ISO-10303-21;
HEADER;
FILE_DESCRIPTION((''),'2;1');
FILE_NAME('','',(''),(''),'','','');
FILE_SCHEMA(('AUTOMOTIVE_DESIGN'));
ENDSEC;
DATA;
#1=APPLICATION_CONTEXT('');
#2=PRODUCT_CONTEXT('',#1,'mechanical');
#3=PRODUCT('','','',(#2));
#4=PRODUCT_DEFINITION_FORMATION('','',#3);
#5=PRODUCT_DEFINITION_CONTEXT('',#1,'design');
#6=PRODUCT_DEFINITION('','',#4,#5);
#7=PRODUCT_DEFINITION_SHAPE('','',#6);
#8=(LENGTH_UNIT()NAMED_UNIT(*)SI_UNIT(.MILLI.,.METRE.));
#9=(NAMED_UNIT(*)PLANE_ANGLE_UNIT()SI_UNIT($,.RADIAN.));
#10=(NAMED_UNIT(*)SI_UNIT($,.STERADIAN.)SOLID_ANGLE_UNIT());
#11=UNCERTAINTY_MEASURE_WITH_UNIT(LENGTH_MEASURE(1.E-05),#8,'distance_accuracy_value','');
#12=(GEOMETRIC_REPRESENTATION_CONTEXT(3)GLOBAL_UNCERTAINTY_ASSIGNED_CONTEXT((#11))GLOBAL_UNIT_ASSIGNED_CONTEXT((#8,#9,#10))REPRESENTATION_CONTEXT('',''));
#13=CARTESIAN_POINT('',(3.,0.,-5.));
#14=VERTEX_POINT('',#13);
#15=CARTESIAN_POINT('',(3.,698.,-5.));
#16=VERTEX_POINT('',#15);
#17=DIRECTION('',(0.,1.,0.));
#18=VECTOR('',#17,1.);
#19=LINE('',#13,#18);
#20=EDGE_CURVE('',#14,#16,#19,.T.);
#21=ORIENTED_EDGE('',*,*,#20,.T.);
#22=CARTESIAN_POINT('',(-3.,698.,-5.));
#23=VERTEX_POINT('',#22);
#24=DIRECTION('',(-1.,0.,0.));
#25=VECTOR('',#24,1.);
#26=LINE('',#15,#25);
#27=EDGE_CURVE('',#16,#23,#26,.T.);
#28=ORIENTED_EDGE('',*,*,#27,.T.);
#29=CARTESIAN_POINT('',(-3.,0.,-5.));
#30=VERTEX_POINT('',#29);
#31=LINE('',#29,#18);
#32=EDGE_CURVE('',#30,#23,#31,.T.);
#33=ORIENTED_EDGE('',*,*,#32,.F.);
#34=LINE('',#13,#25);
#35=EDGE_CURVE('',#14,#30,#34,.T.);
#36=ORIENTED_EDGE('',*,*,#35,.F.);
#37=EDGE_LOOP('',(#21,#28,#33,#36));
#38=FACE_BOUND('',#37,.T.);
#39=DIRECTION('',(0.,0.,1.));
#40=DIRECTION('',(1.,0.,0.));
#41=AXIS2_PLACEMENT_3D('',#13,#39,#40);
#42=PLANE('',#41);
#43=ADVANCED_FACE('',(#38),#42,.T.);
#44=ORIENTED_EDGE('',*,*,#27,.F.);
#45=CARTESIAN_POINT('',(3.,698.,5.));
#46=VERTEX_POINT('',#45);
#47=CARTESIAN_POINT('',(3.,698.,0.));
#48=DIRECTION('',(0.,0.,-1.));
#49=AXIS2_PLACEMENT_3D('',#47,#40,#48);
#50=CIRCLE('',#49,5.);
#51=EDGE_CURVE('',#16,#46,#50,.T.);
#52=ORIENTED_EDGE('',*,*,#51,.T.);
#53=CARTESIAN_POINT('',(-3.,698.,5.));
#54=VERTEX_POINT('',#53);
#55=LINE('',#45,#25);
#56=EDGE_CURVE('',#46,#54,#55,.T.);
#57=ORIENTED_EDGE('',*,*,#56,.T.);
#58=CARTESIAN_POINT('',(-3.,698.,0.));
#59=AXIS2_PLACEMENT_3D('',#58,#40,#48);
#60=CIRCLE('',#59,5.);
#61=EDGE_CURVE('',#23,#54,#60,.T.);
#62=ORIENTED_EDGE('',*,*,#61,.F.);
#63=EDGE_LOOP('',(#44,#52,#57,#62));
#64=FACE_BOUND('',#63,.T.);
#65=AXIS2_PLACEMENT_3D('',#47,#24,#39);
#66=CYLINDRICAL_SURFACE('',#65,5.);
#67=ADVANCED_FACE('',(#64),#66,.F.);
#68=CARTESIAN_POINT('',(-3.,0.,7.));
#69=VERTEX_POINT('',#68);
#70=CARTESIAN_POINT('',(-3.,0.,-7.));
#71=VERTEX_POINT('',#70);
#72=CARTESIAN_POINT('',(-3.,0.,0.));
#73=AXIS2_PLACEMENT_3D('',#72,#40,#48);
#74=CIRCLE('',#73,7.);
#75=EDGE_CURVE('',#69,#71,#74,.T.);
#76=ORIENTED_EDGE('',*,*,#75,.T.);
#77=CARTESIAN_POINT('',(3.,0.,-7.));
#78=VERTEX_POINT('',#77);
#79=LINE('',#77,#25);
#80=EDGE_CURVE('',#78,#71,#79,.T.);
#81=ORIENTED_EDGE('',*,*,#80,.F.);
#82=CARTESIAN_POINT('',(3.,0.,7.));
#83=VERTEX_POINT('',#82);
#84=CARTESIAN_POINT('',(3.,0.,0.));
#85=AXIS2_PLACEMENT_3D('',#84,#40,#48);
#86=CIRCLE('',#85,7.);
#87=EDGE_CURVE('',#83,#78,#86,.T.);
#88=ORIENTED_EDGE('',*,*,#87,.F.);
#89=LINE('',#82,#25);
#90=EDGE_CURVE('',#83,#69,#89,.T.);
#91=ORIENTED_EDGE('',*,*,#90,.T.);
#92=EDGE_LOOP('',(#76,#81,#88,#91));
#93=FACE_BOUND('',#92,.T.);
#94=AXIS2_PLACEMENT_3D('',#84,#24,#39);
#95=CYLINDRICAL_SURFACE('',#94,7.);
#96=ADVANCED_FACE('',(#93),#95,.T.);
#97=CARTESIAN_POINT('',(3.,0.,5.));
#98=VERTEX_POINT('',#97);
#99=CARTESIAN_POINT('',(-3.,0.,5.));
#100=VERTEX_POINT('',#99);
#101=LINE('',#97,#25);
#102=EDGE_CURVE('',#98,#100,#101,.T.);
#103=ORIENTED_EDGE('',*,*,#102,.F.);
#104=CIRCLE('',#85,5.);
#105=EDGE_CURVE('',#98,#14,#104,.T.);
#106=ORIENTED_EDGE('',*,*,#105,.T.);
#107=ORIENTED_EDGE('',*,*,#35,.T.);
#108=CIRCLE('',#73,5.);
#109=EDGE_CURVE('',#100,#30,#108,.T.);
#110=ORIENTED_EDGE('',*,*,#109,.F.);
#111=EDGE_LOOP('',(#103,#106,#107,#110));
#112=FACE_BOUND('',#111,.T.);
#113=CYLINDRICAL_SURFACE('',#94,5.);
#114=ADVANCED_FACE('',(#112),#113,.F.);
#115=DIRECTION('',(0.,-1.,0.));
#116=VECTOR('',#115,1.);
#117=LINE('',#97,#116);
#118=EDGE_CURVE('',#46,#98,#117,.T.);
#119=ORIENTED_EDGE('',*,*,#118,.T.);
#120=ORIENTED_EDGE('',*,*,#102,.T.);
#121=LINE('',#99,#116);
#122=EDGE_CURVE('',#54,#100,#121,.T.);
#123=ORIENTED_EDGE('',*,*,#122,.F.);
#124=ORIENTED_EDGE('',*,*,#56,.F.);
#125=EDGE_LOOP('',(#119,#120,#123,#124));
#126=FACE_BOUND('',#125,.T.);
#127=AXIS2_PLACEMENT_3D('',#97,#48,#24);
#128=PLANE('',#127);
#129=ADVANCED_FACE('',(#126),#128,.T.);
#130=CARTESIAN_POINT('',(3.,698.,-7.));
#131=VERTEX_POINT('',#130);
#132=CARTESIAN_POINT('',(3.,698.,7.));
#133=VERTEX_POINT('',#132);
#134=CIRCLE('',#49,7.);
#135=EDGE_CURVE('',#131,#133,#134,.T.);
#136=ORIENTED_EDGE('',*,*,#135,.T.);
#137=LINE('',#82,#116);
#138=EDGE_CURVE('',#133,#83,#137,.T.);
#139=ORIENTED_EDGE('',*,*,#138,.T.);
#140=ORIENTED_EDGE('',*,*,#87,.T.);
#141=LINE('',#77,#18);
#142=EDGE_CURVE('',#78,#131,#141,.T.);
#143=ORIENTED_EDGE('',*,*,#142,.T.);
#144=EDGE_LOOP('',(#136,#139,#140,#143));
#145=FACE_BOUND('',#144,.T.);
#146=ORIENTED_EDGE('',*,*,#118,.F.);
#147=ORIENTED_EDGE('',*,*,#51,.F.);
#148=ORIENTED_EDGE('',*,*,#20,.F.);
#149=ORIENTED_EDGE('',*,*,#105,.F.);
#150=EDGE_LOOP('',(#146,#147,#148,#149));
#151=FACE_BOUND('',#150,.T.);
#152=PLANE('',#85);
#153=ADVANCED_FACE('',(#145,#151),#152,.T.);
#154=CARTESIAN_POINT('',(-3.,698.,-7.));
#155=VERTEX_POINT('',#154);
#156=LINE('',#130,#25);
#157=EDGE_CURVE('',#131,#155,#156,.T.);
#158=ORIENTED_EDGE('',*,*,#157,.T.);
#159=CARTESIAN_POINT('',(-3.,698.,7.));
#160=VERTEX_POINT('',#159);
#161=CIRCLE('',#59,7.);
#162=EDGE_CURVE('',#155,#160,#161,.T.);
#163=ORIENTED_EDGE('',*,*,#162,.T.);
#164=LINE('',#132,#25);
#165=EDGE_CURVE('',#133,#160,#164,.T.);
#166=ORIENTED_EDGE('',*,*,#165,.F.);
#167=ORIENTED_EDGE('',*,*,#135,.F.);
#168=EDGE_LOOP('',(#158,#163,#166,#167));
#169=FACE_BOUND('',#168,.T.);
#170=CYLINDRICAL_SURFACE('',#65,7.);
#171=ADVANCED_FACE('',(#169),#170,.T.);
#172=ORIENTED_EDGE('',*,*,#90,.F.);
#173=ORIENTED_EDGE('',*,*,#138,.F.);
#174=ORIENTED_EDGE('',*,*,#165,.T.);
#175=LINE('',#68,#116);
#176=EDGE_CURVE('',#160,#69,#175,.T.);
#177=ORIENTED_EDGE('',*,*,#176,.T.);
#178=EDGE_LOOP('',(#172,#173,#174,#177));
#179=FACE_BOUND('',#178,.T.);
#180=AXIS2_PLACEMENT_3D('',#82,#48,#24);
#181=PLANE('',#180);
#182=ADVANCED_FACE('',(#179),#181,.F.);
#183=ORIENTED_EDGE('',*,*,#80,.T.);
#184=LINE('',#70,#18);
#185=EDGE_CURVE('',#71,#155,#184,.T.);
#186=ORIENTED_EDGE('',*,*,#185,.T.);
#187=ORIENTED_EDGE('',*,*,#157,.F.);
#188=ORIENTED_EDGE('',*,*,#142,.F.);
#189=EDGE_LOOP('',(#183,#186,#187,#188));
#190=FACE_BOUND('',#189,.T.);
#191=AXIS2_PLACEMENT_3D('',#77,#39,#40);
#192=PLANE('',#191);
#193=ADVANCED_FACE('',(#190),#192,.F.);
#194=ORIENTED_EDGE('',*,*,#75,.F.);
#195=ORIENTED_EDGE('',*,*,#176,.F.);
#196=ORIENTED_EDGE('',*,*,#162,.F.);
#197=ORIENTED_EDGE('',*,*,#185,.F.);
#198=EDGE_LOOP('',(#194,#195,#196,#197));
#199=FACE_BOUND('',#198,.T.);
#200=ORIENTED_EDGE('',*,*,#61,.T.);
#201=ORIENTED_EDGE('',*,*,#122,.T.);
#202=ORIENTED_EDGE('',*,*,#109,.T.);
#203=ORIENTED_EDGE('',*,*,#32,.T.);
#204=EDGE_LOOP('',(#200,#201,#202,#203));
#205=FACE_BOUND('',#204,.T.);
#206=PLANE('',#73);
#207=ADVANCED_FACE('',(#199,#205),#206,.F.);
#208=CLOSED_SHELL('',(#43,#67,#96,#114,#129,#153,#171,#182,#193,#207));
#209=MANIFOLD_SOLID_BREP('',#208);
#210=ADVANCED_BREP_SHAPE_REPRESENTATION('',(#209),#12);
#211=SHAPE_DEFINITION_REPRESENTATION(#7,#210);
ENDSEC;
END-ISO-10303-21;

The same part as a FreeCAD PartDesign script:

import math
import FreeCAD as App
import Part
import Sketcher
Q = App.Units.Quantity

doc = App.newDocument("Part")
params = doc.addObject("Spreadsheet::Sheet", "Params")
for row, (alias, value) in enumerate([
    ("sketch1_radius", "7 mm"),
    ("sketch1_radius2", "5 mm"),
    ("sketch1_width", "698 mm"),
    ("pad1_length", "6 mm"),
], start=1):
    params.set(f"A{row}", alias)
    params.set(f"B{row}", "=" + value)
    params.setAlias(f"B{row}", alias)

body = doc.addObject("PartDesign::Body", "Body")

# Sketch on YZ plane
sketch1 = body.newObject("Sketcher::SketchObject", "Sketch")
sketch1.AttachmentSupport = (doc.getObject("YZ_Plane"), [""])
sketch1.MapMode = "FlatFace"
sketch1.addGeometry([
    Part.LineSegment(App.Vector(698, 7, 0), App.Vector(0, 7, 0)),  # 0
    Part.ArcOfCircle(Part.Circle(App.Vector(0, 0, 0), App.Vector(0, 0, 1), 7), math.radians(90), math.radians(270)),  # 1
    Part.LineSegment(App.Vector(0, -7, 0), App.Vector(698, -7, 0)),  # 2
    Part.ArcOfCircle(Part.Circle(App.Vector(698, 0, 0), App.Vector(0, 0, 1), 7), math.radians(-90), math.radians(90)),  # 3
    Part.LineSegment(App.Vector(0, 5, 0), App.Vector(698, 5, 0)),  # 4
    Part.ArcOfCircle(Part.Circle(App.Vector(698, 0, 0), App.Vector(0, 0, 1), 5), math.radians(-90), math.radians(90)),  # 5
    Part.LineSegment(App.Vector(698, -5, 0), App.Vector(0, -5, 0)),  # 6
    Part.ArcOfCircle(Part.Circle(App.Vector(0, 0, 0), App.Vector(0, 0, 1), 5), math.radians(90), math.radians(270)),  # 7
], False)
sketch1.addConstraint([
    Sketcher.Constraint("Tangent", 0, 2, 1, 1),
    Sketcher.Constraint("Tangent", 1, 2, 2, 1),
    Sketcher.Constraint("Tangent", 2, 2, 3, 1),
    Sketcher.Constraint("Tangent", 3, 2, 0, 1),
    Sketcher.Constraint("Tangent", 4, 2, 5, 2),
    Sketcher.Constraint("Tangent", 5, 1, 6, 1),
    Sketcher.Constraint("Tangent", 6, 2, 7, 2),
    Sketcher.Constraint("Tangent", 7, 1, 4, 1),
    Sketcher.Constraint("Horizontal", 0),
    Sketcher.Constraint("Horizontal", 2),
    Sketcher.Constraint("Horizontal", 4),
    Sketcher.Constraint("Horizontal", 6),
    Sketcher.Constraint("Coincident", 1, 3, -1, 1),
    Sketcher.Constraint("Coincident", 7, 3, -1, 1),
    Sketcher.Constraint("Vertical", 5, 3, 2, 2),
    Sketcher.Constraint("Radius", 1, Q("7 mm")),
    Sketcher.Constraint("Radius", 5, Q("5 mm")),
    Sketcher.Constraint("DistanceX", 0, 2, 0, 1, Q("698 mm")),
])
sketch1.setExpression("Constraints[15]", "Params.sketch1_radius")
sketch1.setExpression("Constraints[16]", "Params.sketch1_radius2")
sketch1.setExpression("Constraints[17]", "Params.sketch1_width")
pad1 = body.newObject("PartDesign::Pad", "Pad")
pad1.Profile = sketch1
pad1.setExpression("Length", "Params.pad1_length")
pad1.Midplane = True

doc.recompute()
